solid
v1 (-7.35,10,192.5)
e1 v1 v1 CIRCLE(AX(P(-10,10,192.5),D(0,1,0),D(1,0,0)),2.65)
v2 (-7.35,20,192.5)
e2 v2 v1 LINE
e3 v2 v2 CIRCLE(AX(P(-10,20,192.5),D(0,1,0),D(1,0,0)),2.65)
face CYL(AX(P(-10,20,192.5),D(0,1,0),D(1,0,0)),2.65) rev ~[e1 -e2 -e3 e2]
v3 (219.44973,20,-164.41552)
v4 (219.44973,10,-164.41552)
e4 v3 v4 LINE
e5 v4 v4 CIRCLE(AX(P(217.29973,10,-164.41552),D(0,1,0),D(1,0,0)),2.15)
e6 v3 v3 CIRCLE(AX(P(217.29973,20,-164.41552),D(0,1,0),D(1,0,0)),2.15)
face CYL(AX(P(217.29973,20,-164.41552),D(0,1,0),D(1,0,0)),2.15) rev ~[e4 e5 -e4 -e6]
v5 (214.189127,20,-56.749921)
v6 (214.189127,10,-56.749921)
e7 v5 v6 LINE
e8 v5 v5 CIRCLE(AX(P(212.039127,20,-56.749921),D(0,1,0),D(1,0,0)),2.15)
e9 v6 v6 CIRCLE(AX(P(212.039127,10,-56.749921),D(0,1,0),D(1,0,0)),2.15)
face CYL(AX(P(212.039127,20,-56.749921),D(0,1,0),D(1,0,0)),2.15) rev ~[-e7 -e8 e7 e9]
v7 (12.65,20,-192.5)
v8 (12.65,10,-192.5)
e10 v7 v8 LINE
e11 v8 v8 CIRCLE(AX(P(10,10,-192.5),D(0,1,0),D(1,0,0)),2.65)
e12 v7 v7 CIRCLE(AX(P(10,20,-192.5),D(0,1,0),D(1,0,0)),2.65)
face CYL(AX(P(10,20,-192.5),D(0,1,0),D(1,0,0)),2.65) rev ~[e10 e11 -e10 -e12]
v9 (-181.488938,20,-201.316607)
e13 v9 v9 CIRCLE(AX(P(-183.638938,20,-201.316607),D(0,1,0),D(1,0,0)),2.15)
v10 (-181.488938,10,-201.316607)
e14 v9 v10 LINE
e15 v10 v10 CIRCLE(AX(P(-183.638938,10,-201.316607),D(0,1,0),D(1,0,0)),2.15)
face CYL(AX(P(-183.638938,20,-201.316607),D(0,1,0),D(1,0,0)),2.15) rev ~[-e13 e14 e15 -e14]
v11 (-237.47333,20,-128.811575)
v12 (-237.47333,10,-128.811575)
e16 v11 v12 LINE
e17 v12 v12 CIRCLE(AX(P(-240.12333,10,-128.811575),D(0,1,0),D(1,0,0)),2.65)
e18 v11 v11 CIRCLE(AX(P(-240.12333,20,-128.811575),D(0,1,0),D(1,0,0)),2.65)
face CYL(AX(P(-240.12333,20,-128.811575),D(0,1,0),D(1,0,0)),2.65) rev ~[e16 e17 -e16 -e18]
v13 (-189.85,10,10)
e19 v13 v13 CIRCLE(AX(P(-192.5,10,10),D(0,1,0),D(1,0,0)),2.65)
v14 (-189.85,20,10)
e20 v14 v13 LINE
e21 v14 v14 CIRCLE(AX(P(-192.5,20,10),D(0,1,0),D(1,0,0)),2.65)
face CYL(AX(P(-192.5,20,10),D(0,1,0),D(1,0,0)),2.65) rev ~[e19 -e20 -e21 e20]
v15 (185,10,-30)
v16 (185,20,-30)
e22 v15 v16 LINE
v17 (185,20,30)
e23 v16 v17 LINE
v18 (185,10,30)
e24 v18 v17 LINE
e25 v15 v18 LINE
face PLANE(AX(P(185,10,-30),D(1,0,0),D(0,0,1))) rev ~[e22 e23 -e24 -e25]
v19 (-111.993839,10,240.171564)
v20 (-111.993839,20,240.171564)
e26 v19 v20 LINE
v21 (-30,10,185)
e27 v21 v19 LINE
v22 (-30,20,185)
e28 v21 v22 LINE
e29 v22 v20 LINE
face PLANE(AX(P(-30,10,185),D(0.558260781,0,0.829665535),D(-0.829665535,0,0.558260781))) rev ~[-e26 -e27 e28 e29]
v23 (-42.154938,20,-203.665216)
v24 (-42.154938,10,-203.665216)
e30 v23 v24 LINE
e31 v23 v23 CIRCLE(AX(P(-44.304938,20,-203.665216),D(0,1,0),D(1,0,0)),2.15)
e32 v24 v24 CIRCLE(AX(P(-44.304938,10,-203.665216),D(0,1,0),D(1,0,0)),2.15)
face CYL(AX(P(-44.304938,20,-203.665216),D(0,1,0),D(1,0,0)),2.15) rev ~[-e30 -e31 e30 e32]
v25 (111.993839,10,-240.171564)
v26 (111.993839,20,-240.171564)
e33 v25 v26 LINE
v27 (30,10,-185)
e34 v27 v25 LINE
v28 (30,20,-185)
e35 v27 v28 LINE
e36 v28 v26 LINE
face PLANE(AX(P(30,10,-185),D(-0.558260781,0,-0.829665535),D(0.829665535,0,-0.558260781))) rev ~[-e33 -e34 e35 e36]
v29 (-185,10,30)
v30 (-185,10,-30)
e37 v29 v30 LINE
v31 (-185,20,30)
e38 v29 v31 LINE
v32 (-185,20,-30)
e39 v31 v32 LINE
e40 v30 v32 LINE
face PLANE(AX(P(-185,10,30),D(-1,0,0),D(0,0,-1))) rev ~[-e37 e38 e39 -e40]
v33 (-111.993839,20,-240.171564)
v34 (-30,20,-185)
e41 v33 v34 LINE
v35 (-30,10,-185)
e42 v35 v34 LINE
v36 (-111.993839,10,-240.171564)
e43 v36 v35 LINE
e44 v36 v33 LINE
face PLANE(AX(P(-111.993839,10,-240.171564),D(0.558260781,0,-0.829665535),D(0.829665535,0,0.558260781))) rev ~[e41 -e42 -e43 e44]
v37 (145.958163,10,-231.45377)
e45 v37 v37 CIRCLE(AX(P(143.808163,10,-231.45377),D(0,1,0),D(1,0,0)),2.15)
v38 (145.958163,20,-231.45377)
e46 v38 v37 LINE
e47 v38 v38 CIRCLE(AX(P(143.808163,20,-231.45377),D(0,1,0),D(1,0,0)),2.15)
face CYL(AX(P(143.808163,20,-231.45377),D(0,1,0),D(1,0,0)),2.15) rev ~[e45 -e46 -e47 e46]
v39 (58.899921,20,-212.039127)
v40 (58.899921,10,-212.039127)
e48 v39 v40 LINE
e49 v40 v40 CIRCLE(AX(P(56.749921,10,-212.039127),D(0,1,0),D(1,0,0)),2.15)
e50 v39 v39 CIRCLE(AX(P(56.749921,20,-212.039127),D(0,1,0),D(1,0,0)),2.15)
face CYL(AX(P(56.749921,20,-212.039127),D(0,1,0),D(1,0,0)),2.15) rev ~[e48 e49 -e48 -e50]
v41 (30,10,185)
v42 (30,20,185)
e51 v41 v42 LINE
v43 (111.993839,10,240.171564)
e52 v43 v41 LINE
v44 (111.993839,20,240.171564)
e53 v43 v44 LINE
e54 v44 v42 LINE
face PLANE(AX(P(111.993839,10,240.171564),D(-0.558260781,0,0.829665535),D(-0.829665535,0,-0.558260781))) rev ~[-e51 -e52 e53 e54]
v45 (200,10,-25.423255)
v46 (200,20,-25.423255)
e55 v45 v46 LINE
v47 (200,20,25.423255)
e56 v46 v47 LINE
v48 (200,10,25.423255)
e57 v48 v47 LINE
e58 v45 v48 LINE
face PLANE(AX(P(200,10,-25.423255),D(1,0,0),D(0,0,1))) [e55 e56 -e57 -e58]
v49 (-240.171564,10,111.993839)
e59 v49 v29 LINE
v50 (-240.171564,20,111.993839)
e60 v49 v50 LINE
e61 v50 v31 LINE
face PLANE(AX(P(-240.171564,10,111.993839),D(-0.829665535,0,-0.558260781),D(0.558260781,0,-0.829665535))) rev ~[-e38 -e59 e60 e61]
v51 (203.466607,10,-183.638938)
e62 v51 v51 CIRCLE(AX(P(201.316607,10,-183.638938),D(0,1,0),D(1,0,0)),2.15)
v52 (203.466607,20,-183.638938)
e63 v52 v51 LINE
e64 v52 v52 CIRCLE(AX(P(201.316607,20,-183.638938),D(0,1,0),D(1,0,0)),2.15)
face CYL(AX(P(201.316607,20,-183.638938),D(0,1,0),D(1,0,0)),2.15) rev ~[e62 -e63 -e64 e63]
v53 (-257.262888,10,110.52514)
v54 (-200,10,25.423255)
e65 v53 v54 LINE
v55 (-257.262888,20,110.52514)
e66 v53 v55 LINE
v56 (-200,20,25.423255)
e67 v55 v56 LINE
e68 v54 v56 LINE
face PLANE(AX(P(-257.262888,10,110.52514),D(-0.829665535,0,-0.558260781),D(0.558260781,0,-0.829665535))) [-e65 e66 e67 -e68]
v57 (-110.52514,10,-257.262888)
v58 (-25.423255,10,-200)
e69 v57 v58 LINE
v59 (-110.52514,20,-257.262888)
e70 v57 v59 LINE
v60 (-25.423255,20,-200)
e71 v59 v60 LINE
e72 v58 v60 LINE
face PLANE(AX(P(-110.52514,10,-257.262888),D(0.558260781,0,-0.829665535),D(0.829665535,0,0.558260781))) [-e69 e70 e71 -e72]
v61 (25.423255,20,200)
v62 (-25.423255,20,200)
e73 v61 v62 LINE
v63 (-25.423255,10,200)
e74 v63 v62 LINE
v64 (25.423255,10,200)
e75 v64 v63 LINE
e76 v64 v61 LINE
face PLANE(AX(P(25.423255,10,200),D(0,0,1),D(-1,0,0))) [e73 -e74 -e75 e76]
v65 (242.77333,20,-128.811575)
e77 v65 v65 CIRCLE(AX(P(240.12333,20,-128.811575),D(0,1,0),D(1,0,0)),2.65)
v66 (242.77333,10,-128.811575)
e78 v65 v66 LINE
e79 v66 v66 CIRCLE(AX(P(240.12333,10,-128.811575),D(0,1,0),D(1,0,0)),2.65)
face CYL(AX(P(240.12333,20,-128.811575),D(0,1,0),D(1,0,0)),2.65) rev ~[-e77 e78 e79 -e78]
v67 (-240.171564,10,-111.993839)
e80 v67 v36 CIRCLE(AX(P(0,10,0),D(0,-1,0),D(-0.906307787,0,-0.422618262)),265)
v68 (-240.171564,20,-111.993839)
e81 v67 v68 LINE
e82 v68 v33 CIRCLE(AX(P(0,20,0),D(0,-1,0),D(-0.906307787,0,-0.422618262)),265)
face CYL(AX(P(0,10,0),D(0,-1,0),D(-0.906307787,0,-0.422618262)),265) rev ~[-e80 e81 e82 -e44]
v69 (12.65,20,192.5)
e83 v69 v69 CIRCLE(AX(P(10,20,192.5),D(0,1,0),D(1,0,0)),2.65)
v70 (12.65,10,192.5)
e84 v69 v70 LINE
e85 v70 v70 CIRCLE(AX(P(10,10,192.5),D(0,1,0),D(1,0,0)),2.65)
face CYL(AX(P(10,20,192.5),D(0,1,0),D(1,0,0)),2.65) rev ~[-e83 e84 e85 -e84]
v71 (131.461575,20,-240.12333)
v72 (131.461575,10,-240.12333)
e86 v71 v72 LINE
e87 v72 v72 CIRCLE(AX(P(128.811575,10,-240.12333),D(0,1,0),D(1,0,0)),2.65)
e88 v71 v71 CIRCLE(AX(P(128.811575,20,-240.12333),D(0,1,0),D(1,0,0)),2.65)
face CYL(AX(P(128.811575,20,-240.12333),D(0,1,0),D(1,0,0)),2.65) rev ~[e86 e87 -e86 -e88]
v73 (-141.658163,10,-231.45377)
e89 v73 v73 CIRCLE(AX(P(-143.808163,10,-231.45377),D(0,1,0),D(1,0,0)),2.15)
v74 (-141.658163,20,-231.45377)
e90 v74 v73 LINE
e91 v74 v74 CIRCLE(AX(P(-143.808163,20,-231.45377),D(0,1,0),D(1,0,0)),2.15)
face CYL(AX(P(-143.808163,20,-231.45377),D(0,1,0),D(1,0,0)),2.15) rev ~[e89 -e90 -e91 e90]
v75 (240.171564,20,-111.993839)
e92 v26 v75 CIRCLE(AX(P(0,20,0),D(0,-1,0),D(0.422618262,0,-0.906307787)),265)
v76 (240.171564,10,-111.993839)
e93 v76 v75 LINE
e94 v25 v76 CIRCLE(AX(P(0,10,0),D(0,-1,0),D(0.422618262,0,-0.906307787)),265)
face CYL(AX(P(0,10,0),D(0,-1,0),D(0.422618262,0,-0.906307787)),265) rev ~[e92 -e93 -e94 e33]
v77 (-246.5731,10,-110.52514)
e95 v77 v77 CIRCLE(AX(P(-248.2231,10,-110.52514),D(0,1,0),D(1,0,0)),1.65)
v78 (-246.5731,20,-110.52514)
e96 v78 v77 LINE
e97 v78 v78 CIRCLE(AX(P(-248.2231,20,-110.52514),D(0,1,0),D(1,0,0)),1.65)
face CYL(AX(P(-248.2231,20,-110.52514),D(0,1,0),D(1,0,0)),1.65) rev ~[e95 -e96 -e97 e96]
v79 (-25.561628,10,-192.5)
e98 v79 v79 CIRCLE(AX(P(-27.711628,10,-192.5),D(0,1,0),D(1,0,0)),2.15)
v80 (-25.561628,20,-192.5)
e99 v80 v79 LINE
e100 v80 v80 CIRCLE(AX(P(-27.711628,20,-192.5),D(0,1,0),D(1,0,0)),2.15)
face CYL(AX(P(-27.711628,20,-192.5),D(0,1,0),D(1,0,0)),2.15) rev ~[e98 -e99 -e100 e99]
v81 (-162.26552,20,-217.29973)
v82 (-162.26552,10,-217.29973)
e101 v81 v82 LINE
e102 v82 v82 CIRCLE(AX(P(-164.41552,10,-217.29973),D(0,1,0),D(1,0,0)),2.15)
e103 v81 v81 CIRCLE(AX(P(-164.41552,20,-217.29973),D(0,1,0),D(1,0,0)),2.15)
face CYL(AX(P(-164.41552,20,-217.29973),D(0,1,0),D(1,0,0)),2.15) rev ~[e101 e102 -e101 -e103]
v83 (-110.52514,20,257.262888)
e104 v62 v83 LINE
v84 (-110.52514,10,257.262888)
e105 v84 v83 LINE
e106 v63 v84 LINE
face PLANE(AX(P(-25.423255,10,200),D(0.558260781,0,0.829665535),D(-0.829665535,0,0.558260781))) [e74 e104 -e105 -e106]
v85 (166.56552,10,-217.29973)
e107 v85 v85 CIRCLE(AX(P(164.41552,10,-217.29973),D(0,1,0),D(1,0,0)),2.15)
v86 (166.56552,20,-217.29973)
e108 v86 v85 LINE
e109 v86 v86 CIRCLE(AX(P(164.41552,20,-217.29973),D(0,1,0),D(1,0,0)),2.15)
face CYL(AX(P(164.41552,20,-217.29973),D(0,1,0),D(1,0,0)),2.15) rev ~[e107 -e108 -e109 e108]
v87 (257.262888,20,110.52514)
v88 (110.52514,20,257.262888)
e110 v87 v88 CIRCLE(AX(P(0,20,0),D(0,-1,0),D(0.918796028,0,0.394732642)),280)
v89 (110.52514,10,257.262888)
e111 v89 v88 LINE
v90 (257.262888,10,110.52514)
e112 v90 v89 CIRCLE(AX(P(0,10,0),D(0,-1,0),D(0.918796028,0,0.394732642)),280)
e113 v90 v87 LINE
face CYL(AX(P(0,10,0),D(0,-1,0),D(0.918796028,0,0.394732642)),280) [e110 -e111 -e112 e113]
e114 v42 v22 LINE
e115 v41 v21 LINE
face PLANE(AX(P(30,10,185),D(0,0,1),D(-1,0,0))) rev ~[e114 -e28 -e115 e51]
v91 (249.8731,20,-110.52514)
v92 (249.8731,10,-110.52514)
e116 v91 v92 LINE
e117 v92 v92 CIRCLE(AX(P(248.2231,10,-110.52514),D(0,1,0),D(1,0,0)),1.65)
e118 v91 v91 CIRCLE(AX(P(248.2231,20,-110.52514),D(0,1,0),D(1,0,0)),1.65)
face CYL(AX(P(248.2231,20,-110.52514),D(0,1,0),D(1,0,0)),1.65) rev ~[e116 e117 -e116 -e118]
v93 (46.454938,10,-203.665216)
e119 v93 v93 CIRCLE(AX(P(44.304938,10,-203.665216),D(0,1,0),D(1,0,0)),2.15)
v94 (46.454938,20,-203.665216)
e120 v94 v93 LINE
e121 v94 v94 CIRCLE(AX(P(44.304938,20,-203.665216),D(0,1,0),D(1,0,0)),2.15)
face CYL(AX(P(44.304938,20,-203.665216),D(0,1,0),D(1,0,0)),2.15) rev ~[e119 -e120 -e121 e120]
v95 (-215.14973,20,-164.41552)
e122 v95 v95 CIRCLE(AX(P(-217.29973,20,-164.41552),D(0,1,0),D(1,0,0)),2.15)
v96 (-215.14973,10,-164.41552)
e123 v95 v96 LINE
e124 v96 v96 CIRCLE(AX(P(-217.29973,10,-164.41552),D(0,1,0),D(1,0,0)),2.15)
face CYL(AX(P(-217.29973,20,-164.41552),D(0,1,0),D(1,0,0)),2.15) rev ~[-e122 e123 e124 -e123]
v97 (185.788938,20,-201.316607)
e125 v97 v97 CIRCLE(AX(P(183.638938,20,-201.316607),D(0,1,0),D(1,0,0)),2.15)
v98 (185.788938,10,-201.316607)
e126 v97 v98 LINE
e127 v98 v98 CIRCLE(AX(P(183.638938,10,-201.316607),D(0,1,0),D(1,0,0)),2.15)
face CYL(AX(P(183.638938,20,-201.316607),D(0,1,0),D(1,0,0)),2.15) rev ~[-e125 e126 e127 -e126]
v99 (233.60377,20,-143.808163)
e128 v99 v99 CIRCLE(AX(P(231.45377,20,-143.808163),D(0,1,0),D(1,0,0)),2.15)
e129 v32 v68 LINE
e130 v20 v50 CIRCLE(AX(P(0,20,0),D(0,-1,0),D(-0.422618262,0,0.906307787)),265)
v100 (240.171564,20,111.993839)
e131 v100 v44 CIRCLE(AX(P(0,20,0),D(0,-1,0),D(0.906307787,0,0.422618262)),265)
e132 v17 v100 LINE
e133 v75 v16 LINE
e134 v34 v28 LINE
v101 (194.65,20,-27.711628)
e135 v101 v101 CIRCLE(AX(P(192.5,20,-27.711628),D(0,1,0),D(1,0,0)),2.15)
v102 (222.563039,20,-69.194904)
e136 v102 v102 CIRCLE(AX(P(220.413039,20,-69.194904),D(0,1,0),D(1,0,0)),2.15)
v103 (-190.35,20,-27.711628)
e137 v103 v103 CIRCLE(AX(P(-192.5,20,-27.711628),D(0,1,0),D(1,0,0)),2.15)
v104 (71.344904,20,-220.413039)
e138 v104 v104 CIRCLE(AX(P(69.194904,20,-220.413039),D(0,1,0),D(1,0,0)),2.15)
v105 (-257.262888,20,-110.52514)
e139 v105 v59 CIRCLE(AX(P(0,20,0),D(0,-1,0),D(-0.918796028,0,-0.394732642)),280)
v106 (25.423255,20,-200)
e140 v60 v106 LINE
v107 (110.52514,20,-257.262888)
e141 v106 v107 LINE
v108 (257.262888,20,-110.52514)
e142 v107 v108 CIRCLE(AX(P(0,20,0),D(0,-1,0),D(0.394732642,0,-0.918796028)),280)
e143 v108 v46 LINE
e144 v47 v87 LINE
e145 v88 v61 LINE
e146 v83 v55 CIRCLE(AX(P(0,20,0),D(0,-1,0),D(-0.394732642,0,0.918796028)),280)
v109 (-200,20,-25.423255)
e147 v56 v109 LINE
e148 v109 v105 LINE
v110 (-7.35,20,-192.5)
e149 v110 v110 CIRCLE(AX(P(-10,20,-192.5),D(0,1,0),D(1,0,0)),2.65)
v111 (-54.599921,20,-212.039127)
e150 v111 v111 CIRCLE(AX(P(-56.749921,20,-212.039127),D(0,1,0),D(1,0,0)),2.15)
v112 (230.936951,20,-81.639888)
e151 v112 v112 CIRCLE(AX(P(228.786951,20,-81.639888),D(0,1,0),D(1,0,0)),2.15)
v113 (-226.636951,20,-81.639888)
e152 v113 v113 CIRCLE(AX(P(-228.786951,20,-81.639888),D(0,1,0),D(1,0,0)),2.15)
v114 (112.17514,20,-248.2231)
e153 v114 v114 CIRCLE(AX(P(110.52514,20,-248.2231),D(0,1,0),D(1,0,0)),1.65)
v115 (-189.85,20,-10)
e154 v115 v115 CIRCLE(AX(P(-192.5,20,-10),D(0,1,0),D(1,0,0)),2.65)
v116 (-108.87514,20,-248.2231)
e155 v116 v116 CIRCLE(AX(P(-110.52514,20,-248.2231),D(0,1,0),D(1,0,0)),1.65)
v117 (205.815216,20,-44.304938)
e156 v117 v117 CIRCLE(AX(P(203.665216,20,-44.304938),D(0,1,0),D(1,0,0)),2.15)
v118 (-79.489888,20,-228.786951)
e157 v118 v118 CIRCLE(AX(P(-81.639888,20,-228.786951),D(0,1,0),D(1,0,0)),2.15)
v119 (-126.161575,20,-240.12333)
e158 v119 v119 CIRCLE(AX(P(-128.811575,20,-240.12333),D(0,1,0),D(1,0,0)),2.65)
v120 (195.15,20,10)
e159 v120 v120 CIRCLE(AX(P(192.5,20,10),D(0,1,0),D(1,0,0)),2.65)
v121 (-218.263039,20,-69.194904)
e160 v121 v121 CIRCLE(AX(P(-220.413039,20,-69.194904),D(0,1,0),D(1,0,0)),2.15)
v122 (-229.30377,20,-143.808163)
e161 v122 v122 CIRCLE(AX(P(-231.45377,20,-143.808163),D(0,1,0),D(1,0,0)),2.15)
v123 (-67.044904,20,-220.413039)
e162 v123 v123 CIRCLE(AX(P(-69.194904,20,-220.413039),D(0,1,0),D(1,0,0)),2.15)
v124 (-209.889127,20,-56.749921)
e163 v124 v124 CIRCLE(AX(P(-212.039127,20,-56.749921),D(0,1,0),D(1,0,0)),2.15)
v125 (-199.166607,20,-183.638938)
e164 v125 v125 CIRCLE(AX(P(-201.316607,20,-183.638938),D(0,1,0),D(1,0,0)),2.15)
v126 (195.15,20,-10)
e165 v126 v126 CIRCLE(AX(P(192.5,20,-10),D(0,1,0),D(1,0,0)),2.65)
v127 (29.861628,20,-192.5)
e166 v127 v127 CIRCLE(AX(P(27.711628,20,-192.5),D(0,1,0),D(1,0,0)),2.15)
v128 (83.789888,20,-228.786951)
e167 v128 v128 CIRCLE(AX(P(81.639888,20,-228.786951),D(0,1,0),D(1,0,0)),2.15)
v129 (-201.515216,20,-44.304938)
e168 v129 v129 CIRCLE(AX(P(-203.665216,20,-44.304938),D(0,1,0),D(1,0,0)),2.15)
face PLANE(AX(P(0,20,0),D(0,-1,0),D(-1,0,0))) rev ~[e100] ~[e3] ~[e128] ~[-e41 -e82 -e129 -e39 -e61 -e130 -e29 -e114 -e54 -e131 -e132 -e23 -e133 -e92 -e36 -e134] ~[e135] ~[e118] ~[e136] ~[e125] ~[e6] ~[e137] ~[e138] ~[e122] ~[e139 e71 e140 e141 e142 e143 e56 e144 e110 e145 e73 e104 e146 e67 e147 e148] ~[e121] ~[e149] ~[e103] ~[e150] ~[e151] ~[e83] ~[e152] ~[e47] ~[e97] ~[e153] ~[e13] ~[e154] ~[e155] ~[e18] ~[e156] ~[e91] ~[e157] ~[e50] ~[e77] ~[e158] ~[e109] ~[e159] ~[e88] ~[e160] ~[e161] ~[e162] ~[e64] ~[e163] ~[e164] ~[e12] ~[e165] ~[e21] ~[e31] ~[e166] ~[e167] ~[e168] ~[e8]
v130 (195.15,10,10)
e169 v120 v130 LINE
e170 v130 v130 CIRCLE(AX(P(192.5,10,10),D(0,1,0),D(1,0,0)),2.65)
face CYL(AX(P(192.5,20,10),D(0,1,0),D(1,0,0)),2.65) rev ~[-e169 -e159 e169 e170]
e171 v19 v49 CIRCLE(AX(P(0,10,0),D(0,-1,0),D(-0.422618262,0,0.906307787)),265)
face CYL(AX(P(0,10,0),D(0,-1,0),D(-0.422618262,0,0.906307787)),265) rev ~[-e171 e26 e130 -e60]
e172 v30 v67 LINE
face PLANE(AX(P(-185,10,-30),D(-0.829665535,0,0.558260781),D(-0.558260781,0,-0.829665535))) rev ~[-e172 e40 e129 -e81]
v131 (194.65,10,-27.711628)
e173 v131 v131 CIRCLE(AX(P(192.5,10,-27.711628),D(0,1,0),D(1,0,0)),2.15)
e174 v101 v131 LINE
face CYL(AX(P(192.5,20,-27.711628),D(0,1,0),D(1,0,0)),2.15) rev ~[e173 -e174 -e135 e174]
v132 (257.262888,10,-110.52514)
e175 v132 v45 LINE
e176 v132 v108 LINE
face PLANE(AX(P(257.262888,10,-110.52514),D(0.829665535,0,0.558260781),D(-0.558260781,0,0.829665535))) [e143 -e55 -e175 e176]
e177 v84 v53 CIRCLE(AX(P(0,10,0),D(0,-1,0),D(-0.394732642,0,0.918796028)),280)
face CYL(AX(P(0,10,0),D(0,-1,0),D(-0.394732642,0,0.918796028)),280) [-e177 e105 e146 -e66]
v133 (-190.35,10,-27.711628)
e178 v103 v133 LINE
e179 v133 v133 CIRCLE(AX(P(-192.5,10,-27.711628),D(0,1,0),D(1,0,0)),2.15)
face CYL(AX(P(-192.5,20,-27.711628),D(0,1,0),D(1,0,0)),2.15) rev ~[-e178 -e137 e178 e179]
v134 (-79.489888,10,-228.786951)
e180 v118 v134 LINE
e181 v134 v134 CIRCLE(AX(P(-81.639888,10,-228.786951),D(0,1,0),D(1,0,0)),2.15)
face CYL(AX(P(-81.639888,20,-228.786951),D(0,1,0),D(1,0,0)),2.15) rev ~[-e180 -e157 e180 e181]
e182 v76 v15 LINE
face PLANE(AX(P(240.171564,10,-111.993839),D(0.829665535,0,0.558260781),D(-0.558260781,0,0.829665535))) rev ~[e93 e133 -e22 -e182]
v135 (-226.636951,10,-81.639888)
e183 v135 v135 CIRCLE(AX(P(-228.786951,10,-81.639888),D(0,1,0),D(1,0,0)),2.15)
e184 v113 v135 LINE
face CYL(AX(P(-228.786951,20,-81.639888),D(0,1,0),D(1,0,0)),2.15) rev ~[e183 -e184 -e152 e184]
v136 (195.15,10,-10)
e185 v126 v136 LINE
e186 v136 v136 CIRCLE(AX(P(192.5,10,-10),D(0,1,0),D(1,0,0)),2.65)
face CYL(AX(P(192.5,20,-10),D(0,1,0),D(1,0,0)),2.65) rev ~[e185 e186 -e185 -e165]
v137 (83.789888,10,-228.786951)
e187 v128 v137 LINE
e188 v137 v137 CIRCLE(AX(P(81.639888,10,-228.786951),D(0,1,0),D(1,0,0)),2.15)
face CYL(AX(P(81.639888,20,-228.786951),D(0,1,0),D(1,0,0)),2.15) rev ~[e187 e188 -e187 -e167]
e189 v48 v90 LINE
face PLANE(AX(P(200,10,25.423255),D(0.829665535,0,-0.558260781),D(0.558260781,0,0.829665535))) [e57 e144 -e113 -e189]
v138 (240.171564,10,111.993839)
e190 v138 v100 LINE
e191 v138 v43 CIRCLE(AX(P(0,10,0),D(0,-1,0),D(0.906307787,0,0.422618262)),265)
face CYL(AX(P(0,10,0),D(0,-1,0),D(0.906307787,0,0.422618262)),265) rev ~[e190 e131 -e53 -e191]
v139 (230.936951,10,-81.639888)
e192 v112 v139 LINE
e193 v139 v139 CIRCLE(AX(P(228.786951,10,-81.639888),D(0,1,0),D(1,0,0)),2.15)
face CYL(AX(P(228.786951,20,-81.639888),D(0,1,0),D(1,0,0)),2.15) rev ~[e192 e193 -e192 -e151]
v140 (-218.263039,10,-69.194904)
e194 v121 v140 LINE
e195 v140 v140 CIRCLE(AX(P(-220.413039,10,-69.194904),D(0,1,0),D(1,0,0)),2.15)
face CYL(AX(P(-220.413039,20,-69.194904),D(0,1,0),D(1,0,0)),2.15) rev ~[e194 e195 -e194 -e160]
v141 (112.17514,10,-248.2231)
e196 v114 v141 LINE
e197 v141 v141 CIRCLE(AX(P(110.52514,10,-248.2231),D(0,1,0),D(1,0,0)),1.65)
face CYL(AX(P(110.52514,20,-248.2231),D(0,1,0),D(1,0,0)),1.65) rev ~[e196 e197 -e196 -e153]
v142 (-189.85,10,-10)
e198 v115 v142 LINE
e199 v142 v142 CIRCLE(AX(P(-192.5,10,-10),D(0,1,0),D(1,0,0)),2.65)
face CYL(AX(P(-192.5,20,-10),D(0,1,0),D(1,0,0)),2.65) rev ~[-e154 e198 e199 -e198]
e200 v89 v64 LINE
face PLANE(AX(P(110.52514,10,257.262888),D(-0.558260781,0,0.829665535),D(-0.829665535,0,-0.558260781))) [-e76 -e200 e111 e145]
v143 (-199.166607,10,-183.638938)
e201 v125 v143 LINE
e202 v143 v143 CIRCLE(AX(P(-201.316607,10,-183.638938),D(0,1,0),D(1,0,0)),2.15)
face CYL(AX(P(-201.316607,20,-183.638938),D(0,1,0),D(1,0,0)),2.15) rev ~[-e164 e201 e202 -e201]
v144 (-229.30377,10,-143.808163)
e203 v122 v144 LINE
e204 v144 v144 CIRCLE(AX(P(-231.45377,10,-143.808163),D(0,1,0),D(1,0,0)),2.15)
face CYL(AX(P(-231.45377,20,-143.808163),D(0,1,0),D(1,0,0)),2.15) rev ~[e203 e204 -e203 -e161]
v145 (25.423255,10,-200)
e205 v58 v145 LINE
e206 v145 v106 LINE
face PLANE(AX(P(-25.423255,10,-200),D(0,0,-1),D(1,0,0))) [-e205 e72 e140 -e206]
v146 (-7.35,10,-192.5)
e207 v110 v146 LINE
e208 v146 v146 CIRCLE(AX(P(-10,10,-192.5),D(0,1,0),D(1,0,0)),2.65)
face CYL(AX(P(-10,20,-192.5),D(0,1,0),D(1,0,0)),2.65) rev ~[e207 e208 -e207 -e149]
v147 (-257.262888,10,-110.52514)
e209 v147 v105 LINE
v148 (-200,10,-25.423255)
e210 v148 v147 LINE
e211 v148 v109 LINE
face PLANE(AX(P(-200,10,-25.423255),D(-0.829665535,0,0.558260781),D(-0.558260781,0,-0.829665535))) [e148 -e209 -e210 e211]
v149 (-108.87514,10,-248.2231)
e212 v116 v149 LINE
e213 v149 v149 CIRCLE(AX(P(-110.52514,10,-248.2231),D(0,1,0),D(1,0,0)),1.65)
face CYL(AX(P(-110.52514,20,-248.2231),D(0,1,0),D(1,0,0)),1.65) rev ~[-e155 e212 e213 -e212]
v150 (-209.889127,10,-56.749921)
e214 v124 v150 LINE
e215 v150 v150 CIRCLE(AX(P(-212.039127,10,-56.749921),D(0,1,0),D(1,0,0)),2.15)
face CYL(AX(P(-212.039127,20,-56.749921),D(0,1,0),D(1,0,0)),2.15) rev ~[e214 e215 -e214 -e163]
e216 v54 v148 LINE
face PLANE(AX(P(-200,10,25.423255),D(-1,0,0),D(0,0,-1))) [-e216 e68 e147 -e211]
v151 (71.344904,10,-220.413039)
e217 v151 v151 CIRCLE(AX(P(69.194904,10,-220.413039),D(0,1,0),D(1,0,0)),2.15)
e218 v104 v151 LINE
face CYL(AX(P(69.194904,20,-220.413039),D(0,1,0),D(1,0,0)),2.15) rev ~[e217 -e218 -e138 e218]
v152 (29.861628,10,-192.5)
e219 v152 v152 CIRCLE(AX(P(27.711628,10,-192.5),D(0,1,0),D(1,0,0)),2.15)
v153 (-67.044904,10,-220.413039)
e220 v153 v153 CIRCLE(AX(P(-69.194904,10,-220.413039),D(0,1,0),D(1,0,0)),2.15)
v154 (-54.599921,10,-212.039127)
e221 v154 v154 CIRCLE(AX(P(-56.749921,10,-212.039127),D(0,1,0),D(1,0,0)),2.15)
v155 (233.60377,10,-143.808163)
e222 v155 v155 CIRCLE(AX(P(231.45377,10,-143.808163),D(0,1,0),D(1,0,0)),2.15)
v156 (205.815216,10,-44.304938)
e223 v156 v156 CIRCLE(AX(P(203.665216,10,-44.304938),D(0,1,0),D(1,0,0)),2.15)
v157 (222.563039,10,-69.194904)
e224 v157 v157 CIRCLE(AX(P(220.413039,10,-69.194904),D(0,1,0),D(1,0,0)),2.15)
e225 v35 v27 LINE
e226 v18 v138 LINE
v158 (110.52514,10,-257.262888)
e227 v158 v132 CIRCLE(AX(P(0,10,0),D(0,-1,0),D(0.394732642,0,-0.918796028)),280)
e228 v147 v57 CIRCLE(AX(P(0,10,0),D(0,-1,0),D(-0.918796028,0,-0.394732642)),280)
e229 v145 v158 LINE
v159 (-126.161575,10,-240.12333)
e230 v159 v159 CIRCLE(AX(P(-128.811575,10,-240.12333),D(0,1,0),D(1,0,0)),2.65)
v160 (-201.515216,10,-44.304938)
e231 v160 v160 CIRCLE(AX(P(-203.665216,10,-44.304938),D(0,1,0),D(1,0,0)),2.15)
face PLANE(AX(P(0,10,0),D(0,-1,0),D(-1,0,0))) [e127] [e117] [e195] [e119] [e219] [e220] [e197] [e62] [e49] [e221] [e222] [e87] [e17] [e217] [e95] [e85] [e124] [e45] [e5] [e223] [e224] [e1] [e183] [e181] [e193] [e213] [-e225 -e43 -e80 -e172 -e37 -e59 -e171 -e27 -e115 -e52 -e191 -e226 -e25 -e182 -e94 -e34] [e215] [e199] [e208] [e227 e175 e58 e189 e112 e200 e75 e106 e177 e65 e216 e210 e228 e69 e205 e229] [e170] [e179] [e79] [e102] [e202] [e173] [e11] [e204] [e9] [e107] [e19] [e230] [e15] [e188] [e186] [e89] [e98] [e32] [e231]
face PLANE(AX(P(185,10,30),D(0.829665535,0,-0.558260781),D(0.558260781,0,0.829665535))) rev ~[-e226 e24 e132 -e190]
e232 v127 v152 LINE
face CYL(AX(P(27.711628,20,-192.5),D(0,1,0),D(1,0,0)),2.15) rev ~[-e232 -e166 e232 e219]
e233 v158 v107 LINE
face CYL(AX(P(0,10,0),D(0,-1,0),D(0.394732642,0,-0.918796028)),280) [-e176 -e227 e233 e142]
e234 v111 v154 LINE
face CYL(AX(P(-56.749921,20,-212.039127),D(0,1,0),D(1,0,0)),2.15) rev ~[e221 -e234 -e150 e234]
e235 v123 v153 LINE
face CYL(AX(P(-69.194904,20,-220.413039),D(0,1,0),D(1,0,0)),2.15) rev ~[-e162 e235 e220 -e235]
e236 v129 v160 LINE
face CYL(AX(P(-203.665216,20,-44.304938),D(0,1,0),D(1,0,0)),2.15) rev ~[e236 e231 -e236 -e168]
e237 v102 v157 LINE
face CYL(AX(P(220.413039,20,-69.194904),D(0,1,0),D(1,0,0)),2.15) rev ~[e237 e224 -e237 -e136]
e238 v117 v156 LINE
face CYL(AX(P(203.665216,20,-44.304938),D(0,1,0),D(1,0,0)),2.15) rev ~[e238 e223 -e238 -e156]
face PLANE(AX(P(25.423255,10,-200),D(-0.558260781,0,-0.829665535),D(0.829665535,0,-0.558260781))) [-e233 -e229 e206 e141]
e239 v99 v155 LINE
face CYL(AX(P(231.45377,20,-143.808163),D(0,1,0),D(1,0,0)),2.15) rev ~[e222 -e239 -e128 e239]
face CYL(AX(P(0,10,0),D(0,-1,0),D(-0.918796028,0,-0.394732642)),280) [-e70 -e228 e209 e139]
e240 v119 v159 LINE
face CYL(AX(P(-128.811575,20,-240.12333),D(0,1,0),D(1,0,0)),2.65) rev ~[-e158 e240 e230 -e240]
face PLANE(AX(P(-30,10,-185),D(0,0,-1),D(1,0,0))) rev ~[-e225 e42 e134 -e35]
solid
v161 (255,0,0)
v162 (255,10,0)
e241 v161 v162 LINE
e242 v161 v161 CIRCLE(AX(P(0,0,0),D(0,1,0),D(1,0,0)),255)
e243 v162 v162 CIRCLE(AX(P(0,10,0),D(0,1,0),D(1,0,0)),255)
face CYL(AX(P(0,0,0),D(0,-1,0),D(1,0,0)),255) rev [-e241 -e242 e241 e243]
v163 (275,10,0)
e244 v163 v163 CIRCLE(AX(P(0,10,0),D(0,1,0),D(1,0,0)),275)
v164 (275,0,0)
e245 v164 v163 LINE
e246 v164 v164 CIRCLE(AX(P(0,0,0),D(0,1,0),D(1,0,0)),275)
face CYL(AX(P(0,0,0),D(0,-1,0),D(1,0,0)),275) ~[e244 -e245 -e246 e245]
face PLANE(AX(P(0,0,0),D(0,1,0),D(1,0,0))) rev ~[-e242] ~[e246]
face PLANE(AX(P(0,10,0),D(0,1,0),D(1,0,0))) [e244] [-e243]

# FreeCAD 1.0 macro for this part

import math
import FreeCAD as App
import Part
import Sketcher

doc = App.newDocument("Part")
params = doc.addObject("Spreadsheet::Sheet", "Params")
for row, (alias, value) in enumerate([
    ("sketch1_diameter", "550 mm"),
    ("sketch1_diameter2", "510 mm"),
    ("pad1_length", "10 mm"),
    ("sketch2_radius", "280 mm"),
    ("sketch2_radius2", "265 mm"),
    ("sketch2_width", "60 mm"),
    ("pad2_length", "10 mm"),
    ("sketch3_diameter", "5.3 mm"),
    ("sketch3_diameter2", "3.3 mm"),
    ("sketch3_diameter3", "4.3 mm"),
], start=1):
    params.set(f"A{row}", alias)
    params.set(f"B{row}", "=" + value)
    params.setAlias(f"B{row}", alias)

body = doc.addObject("PartDesign::Body", "Body")

# Sketch on XZ plane
sketch1 = body.newObject("Sketcher::SketchObject", "Sketch")
sketch1.AttachmentSupport = (doc.getObject("XZ_Plane"), [""])
sketch1.MapMode = "FlatFace"
sketch1.addGeometry([
    Part.Circle(App.Vector(0, 0, 0), App.Vector(0, 0, 1), 275),
    Part.Circle(App.Vector(0, 0, 0), App.Vector(0, 0, 1), 255),
], False)
sketch1.addConstraint([
    Sketcher.Constraint("Coincident", 0, 3, -1, 1),
    Sketcher.Constraint("Coincident", 1, 3, -1, 1),
    Sketcher.Constraint("Diameter", 0, 550.0),
    Sketcher.Constraint("Diameter", 1, 510.0),
])
sketch1.setExpression("Constraints[2]", "Params.sketch1_diameter")
sketch1.setExpression("Constraints[3]", "Params.sketch1_diameter2")
pad1 = body.newObject("PartDesign::Pad", "Pad")
pad1.Profile = sketch1
pad1.setExpression("Length", "Params.pad1_length")
pad1.Reversed = True
body2 = doc.addObject("PartDesign::Body", "Body001")

# Sketch on XZ plane
sketch2 = body2.newObject("Sketcher::SketchObject", "Sketch001")
sketch2.AttachmentSupport = (doc.getObject("XZ_Plane001"), [""])
sketch2.MapMode = "FlatFace"
sketch2.AttachmentOffset = App.Placement(App.Vector(0, 0, -10), App.Rotation())
sketch2.addGeometry([
    Part.LineSegment(App.Vector(-25, -200, 0), App.Vector(-111, -257, 0)),  # 0
    Part.ArcOfCircle(Part.Circle(App.Vector(0, 0, 0), App.Vector(0, 0, 1), 280), math.radians(-157), math.radians(-113)),  # 1
    Part.LineSegment(App.Vector(-257, -111, 0), App.Vector(-200, -25, 0)),  # 2
    Part.LineSegment(App.Vector(-200, -25, 0), App.Vector(-200, 25, 0)),  # 3
    Part.LineSegment(App.Vector(-200, 25, 0), App.Vector(-257, 111, 0)),  # 4
    Part.ArcOfCircle(Part.Circle(App.Vector(0, 0, 0), App.Vector(0, 0, 1), 280), math.radians(113), math.radians(157)),  # 5
    Part.LineSegment(App.Vector(-111, 257, 0), App.Vector(-25, 200, 0)),  # 6
    Part.LineSegment(App.Vector(-25, 200, 0), App.Vector(25, 200, 0)),  # 7
    Part.LineSegment(App.Vector(25, 200, 0), App.Vector(111, 257, 0)),  # 8
    Part.ArcOfCircle(Part.Circle(App.Vector(0, 0, 0), App.Vector(0, 0, 1), 280), math.radians(23), math.radians(67)),  # 9
    Part.LineSegment(App.Vector(257, 111, 0), App.Vector(200, 25, 0)),  # 10
    Part.LineSegment(App.Vector(200, 25, 0), App.Vector(200, -25, 0)),  # 11
    Part.LineSegment(App.Vector(200, -25, 0), App.Vector(257, -111, 0)),  # 12
    Part.ArcOfCircle(Part.Circle(App.Vector(0, 0, 0), App.Vector(0, 0, 1), 280), math.radians(-67), math.radians(-23)),  # 13
    Part.LineSegment(App.Vector(111, -257, 0), App.Vector(25, -200, 0)),  # 14
    Part.LineSegment(App.Vector(25, -200, 0), App.Vector(-25, -200, 0)),  # 15
    Part.LineSegment(App.Vector(30, -185, 0), App.Vector(112, -240, 0)),  # 16
    Part.ArcOfCircle(Part.Circle(App.Vector(0, 0, 0), App.Vector(0, 0, 1), 265), math.radians(-65), math.radians(-25)),  # 17
    Part.LineSegment(App.Vector(240, -112, 0), App.Vector(185, -30, 0)),  # 18
    Part.LineSegment(App.Vector(185, -30, 0), App.Vector(185, 30, 0)),  # 19
    Part.LineSegment(App.Vector(185, 30, 0), App.Vector(240, 112, 0)),  # 20
    Part.ArcOfCircle(Part.Circle(App.Vector(0, 0, 0), App.Vector(0, 0, 1), 265), math.radians(25), math.radians(65)),  # 21
    Part.LineSegment(App.Vector(112, 240, 0), App.Vector(30, 185, 0)),  # 22
    Part.LineSegment(App.Vector(30, 185, 0), App.Vector(-30, 185, 0)),  # 23
    Part.LineSegment(App.Vector(-30, 185, 0), App.Vector(-112, 240, 0)),  # 24
    Part.ArcOfCircle(Part.Circle(App.Vector(0, 0, 0), App.Vector(0, 0, 1), 265), math.radians(115), math.radians(155)),  # 25
    Part.LineSegment(App.Vector(-240, 112, 0), App.Vector(-185, 30, 0)),  # 26
    Part.LineSegment(App.Vector(-185, 30, 0), App.Vector(-185, -30, 0)),  # 27
    Part.LineSegment(App.Vector(-185, -30, 0), App.Vector(-240, -112, 0)),  # 28
    Part.ArcOfCircle(Part.Circle(App.Vector(0, 0, 0), App.Vector(0, 0, 1), 265), math.radians(-155), math.radians(-115)),  # 29
    Part.LineSegment(App.Vector(-112, -240, 0), App.Vector(-30, -185, 0)),  # 30
    Part.LineSegment(App.Vector(-30, -185, 0), App.Vector(30, -185, 0)),  # 31
], False)
sketch2.addConstraint([
    Sketcher.Constraint("Coincident", 0, 2, 1, 2),
    Sketcher.Constraint("Coincident", 1, 1, 2, 1),
    Sketcher.Constraint("Coincident", 2, 2, 3, 1),
    Sketcher.Constraint("Coincident", 3, 2, 4, 1),
    Sketcher.Constraint("Coincident", 4, 2, 5, 2),
    Sketcher.Constraint("Coincident", 5, 1, 6, 1),
    Sketcher.Constraint("Coincident", 6, 2, 7, 1),
    Sketcher.Constraint("Coincident", 7, 2, 8, 1),
    Sketcher.Constraint("Coincident", 8, 2, 9, 2),
    Sketcher.Constraint("Coincident", 9, 1, 10, 1),
    Sketcher.Constraint("Coincident", 10, 2, 11, 1),
    Sketcher.Constraint("Coincident", 11, 2, 12, 1),
    Sketcher.Constraint("Coincident", 12, 2, 13, 2),
    Sketcher.Constraint("Coincident", 13, 1, 14, 1),
    Sketcher.Constraint("Coincident", 14, 2, 15, 1),
    Sketcher.Constraint("Coincident", 15, 2, 0, 1),
    Sketcher.Constraint("Coincident", 16, 2, 17, 1),
    Sketcher.Constraint("Coincident", 17, 2, 18, 1),
    Sketcher.Constraint("Coincident", 18, 2, 19, 1),
    Sketcher.Constraint("Coincident", 19, 2, 20, 1),
    Sketcher.Constraint("Coincident", 20, 2, 21, 1),
    Sketcher.Constraint("Coincident", 21, 2, 22, 1),
    Sketcher.Constraint("Coincident", 22, 2, 23, 1),
    Sketcher.Constraint("Coincident", 23, 2, 24, 1),
    Sketcher.Constraint("Coincident", 24, 2, 25, 1),
    Sketcher.Constraint("Coincident", 25, 2, 26, 1),
    Sketcher.Constraint("Coincident", 26, 2, 27, 1),
    Sketcher.Constraint("Coincident", 27, 2, 28, 1),
    Sketcher.Constraint("Coincident", 28, 2, 29, 1),
    Sketcher.Constraint("Coincident", 29, 2, 30, 1),
    Sketcher.Constraint("Coincident", 30, 2, 31, 1),
    Sketcher.Constraint("Coincident", 31, 2, 16, 1),
    Sketcher.Constraint("Vertical", 3),
    Sketcher.Constraint("Horizontal", 7),
    Sketcher.Constraint("Vertical", 11),
    Sketcher.Constraint("Horizontal", 15),
    Sketcher.Constraint("Vertical", 19),
    Sketcher.Constraint("Horizontal", 23),
    Sketcher.Constraint("Vertical", 27),
    Sketcher.Constraint("Horizontal", 31),
    Sketcher.Constraint("Coincident", 1, 3, -1, 1),
    Sketcher.Constraint("Coincident", 5, 3, -1, 1),
    Sketcher.Constraint("Coincident", 9, 3, -1, 1),
    Sketcher.Constraint("Coincident", 13, 3, -1, 1),
    Sketcher.Constraint("Coincident", 17, 3, -1, 1),
    Sketcher.Constraint("Coincident", 21, 3, -1, 1),
    Sketcher.Constraint("Coincident", 25, 3, -1, 1),
    Sketcher.Constraint("Coincident", 29, 3, -1, 1),
    Sketcher.Constraint("Equal", 1, 5),
    Sketcher.Constraint("Equal", 5, 9),
    Sketcher.Constraint("Equal", 9, 13),
    Sketcher.Constraint("Equal", 17, 21),
    Sketcher.Constraint("Equal", 21, 25),
    Sketcher.Constraint("Equal", 25, 29),
    Sketcher.Constraint("Symmetric", 2, 2, 10, 2, -1, 1),
    Sketcher.Constraint("Symmetric", 6, 2, 14, 2, -1, 1),
    Sketcher.Constraint("Symmetric", 18, 2, 26, 2, -1, 1),
    Sketcher.Constraint("Symmetric", 22, 2, 30, 2, -1, 1),
    Sketcher.Constraint("Perpendicular", 0, 4),
    Sketcher.Constraint("Perpendicular", 2, 6),
    Sketcher.Constraint("Perpendicular", 4, 8),
    Sketcher.Constraint("Perpendicular", 6, 10),
    Sketcher.Constraint("Perpendicular", 8, 12),
    Sketcher.Constraint("Perpendicular", 10, 14),
    Sketcher.Constraint("Parallel", 14, 16),
    Sketcher.Constraint("Parallel", 12, 18),
    Sketcher.Constraint("Perpendicular", 16, 20),
    Sketcher.Constraint("Perpendicular", 18, 22),
    Sketcher.Constraint("Perpendicular", 20, 24),
    Sketcher.Constraint("Perpendicular", 22, 26),
    Sketcher.Constraint("Perpendicular", 24, 28),
    Sketcher.Constraint("Perpendicular", 26, 30),
    Sketcher.Constraint("Horizontal", 5, 1, 8, 2),
    Sketcher.Constraint("Horizontal", 4, 2, 9, 1),
    Sketcher.Constraint("Horizontal", 3, 2, 10, 2),
    Sketcher.Constraint("Horizontal", 2, 2, 11, 2),
    Sketcher.Constraint("Horizontal", 19, 2, 26, 2),
    Sketcher.Constraint("Horizontal", 18, 2, 27, 2),
    Sketcher.Constraint("Vertical", 6, 2, 15, 2),
    Sketcher.Constraint("Vertical", 23, 2, 30, 2),
    Sketcher.Constraint("Vertical", 22, 2, 31, 2),
    Sketcher.Constraint("Equal", 15, 3),
    Sketcher.Constraint("Equal", 31, 19),
    Sketcher.Constraint("Equal", 0, 2),
    Sketcher.Constraint("Equal", 16, 18),
    Sketcher.Constraint("Radius", 1, 280.0),
    Sketcher.Constraint("Radius", 17, 265.0),
    Sketcher.Constraint("DistanceX", 23, 2, 23, 1, 60.0),
    Sketcher.Constraint("DistanceX", 2, 2, -1, 1, 200.0),
    Sketcher.Constraint("DistanceX", -1, 1, 18, 2, 185.0),
    Sketcher.Constraint("DistanceX", 7, 1, 7, 2, 50.846511),
    Sketcher.Constraint("DistanceX", 0, 2, -1, 1, 110.52514),
])
sketch2.setExpression("Constraints[85]", "Params.sketch2_radius")
sketch2.setExpression("Constraints[86]", "Params.sketch2_radius2")
sketch2.setExpression("Constraints[87]", "Params.sketch2_width")
pad2 = body2.newObject("PartDesign::Pad", "Pad001")
pad2.Profile = sketch2
pad2.setExpression("Length", "Params.pad2_length")
pad2.Reversed = True

# Sketch on XZ plane
sketch3 = body2.newObject("Sketcher::SketchObject", "Sketch002")
sketch3.AttachmentSupport = (doc.getObject("XZ_Plane001"), [""])
sketch3.MapMode = "FlatFace"
sketch3.AttachmentOffset = App.Placement(App.Vector(0, 0, -20), App.Rotation())
sketch3.addGeometry([
    Part.Circle(App.Vector(-10, -192.5, 0), App.Vector(0, 0, 1), 2.6),  # 0
    Part.Circle(App.Vector(10, -192.5, 0), App.Vector(0, 0, 1), 2.6),  # 1
    Part.Circle(App.Vector(-10, 192.5, 0), App.Vector(0, 0, 1), 2.6),  # 2
    Part.Circle(App.Vector(10, 192.5, 0), App.Vector(0, 0, 1), 2.6),  # 3
    Part.Circle(App.Vector(192.5, -10, 0), App.Vector(0, 0, 1), 2.6),  # 4
    Part.Circle(App.Vector(192.5, 10, 0), App.Vector(0, 0, 1), 2.6),  # 5
    Part.Circle(App.Vector(-192.5, -10, 0), App.Vector(0, 0, 1), 2.6),  # 6
    Part.Circle(App.Vector(-192.5, 10, 0), App.Vector(0, 0, 1), 2.6),  # 7
    Part.Circle(App.Vector(-110.5, -248.2, 0), App.Vector(0, 0, 1), 1.6),  # 8
    Part.Circle(App.Vector(-27.7, -192.5, 0), App.Vector(0, 0, 1), 2.1),  # 9
    Part.Circle(App.Vector(-44.3, -203.7, 0), App.Vector(0, 0, 1), 2.1),  # 10
    Part.Circle(App.Vector(-56.7, -212, 0), App.Vector(0, 0, 1), 2.1),  # 11
    Part.Circle(App.Vector(-69.2, -220.4, 0), App.Vector(0, 0, 1), 2.1),  # 12
    Part.Circle(App.Vector(-81.6, -228.8, 0), App.Vector(0, 0, 1), 2.1),  # 13
    Part.Circle(App.Vector(-143.8, -231.5, 0), App.Vector(0, 0, 1), 2.1),  # 14
    Part.Circle(App.Vector(-164.4, -217.3, 0), App.Vector(0, 0, 1), 2.1),  # 15
    Part.Circle(App.Vector(-183.6, -201.3, 0), App.Vector(0, 0, 1), 2.1),  # 16
    Part.Circle(App.Vector(-201.3, -183.6, 0), App.Vector(0, 0, 1), 2.1),  # 17
    Part.Circle(App.Vector(-217.3, -164.4, 0), App.Vector(0, 0, 1), 2.1),  # 18
    Part.Circle(App.Vector(-231.5, -143.8, 0), App.Vector(0, 0, 1), 2.1),  # 19
    Part.Circle(App.Vector(-128.8, -240.1, 0), App.Vector(0, 0, 1), 2.6),  # 20
    Part.Circle(App.Vector(-240.1, -128.8, 0), App.Vector(0, 0, 1), 2.6),  # 21
    Part.Circle(App.Vector(-228.8, -81.6, 0), App.Vector(0, 0, 1), 2.1),  # 22
    Part.Circle(App.Vector(-220.4, -69.2, 0), App.Vector(0, 0, 1), 2.1),  # 23
    Part.Circle(App.Vector(-212, -56.7, 0), App.Vector(0, 0, 1), 2.1),  # 24
    Part.Circle(App.Vector(-203.7, -44.3, 0), App.Vector(0, 0, 1), 2.1),  # 25
    Part.Circle(App.Vector(-192.5, -27.7, 0), App.Vector(0, 0, 1), 2.1),  # 26
    Part.Circle(App.Vector(-248.2, -110.5, 0), App.Vector(0, 0, 1), 1.6),  # 27
    Part.Circle(App.Vector(192.5, -27.7, 0), App.Vector(0, 0, 1), 2.1),  # 28
    Part.Circle(App.Vector(248.2, -110.5, 0), App.Vector(0, 0, 1), 1.6),  # 29
    Part.Circle(App.Vector(203.7, -44.3, 0), App.Vector(0, 0, 1), 2.1),  # 30
    Part.Circle(App.Vector(212, -56.7, 0), App.Vector(0, 0, 1), 2.1),  # 31
    Part.Circle(App.Vector(220.4, -69.2, 0), App.Vector(0, 0, 1), 2.1),  # 32
    Part.Circle(App.Vector(228.8, -81.6, 0), App.Vector(0, 0, 1), 2.1),  # 33
    Part.Circle(App.Vector(240.1, -128.8, 0), App.Vector(0, 0, 1), 2.6),  # 34
    Part.Circle(App.Vector(231.5, -143.8, 0), App.Vector(0, 0, 1), 2.1),  # 35
    Part.Circle(App.Vector(128.8, -240.1, 0), App.Vector(0, 0, 1), 2.6),  # 36
    Part.Circle(App.Vector(201.3, -183.6, 0), App.Vector(0, 0, 1), 2.1),  # 37
    Part.Circle(App.Vector(183.6, -201.3, 0), App.Vector(0, 0, 1), 2.1),  # 38
    Part.Circle(App.Vector(164.4, -217.3, 0), App.Vector(0, 0, 1), 2.1),  # 39
    Part.Circle(App.Vector(143.8, -231.5, 0), App.Vector(0, 0, 1), 2.1),  # 40
    Part.Circle(App.Vector(81.6, -228.8, 0), App.Vector(0, 0, 1), 2.1),  # 41
    Part.Circle(App.Vector(69.2, -220.4, 0), App.Vector(0, 0, 1), 2.1),  # 42
    Part.Circle(App.Vector(56.7, -212, 0), App.Vector(0, 0, 1), 2.1),  # 43
    Part.Circle(App.Vector(44.3, -203.7, 0), App.Vector(0, 0, 1), 2.1),  # 44
    Part.Circle(App.Vector(110.5, -248.2, 0), App.Vector(0, 0, 1), 1.6),  # 45
    Part.Circle(App.Vector(27.7, -192.5, 0), App.Vector(0, 0, 1), 2.1),  # 46
    Part.Circle(App.Vector(217.3, -164.4, 0), App.Vector(0, 0, 1), 2.1),  # 47
], False)
sketch3.addConstraint([
    Sketcher.Constraint("Equal", 0, 1),
    Sketcher.Constraint("Equal", 1, 2),
    Sketcher.Constraint("Equal", 2, 3),
    Sketcher.Constraint("Equal", 3, 4),
    Sketcher.Constraint("Equal", 4, 5),
    Sketcher.Constraint("Equal", 5, 6),
    Sketcher.Constraint("Equal", 6, 7),
    Sketcher.Constraint("Equal", 9, 10),
    Sketcher.Constraint("Equal", 10, 11),
    Sketcher.Constraint("Equal", 11, 12),
    Sketcher.Constraint("Equal", 12, 13),
    Sketcher.Constraint("Equal", 13, 14),
    Sketcher.Constraint("Equal", 14, 15),
    Sketcher.Constraint("Equal", 15, 16),
    Sketcher.Constraint("Equal", 16, 17),
    Sketcher.Constraint("Equal", 17, 18),
    Sketcher.Constraint("Equal", 18, 19),
    Sketcher.Constraint("Equal", 7, 20),
    Sketcher.Constraint("Equal", 20, 21),
    Sketcher.Constraint("Equal", 19, 22),
    Sketcher.Constraint("Equal", 22, 23),
    Sketcher.Constraint("Equal", 23, 24),
    Sketcher.Constraint("Equal", 24, 25),
    Sketcher.Constraint("Equal", 25, 26),
    Sketcher.Constraint("Equal", 8, 27),
    Sketcher.Constraint("Equal", 26, 28),
    Sketcher.Constraint("Equal", 27, 29),
    Sketcher.Constraint("Equal", 28, 30),
    Sketcher.Constraint("Equal", 30, 31),
    Sketcher.Constraint("Equal", 31, 32),
    Sketcher.Constraint("Equal", 32, 33),
    Sketcher.Constraint("Equal", 21, 34),
    Sketcher.Constraint("Equal", 33, 35),
    Sketcher.Constraint("Equal", 34, 36),
    Sketcher.Constraint("Equal", 35, 37),
    Sketcher.Constraint("Equal", 37, 38),
    Sketcher.Constraint("Equal", 38, 39),
    Sketcher.Constraint("Equal", 39, 40),
    Sketcher.Constraint("Equal", 40, 41),
    Sketcher.Constraint("Equal", 41, 42),
    Sketcher.Constraint("Equal", 42, 43),
    Sketcher.Constraint("Equal", 43, 44),
    Sketcher.Constraint("Equal", 29, 45),
    Sketcher.Constraint("Equal", 44, 46),
    Sketcher.Constraint("Equal", 46, 47),
    Sketcher.Constraint("Symmetric", 1, 3, 2, 3, -1, 1),
    Sketcher.Constraint("Symmetric", 0, 3, 3, 3, -1, 1),
    Sketcher.Constraint("Symmetric", 5, 3, 6, 3, -1, 1),
    Sketcher.Constraint("Symmetric", 4, 3, 7, 3, -1, 1),
    Sketcher.Constraint("Symmetric", 0, 3, 1, 3, -2),
    Sketcher.Constraint("Symmetric", 4, 3, 6, 3, -2),
    Sketcher.Constraint("Symmetric", 26, 3, 28, 3, -2),
    Sketcher.Constraint("Symmetric", 27, 3, 29, 3, -2),
    Sketcher.Constraint("Symmetric", 25, 3, 30, 3, -2),
    Sketcher.Constraint("Symmetric", 24, 3, 31, 3, -2),
    Sketcher.Constraint("Symmetric", 23, 3, 32, 3, -2),
    Sketcher.Constraint("Symmetric", 22, 3, 33, 3, -2),
    Sketcher.Constraint("Symmetric", 21, 3, 34, 3, -2),
    Sketcher.Constraint("Symmetric", 19, 3, 35, 3, -2),
    Sketcher.Constraint("Symmetric", 20, 3, 36, 3, -2),
    Sketcher.Constraint("Symmetric", 17, 3, 37, 3, -2),
    Sketcher.Constraint("Symmetric", 16, 3, 38, 3, -2),
    Sketcher.Constraint("Symmetric", 15, 3, 39, 3, -2),
    Sketcher.Constraint("Symmetric", 14, 3, 40, 3, -2),
    Sketcher.Constraint("Symmetric", 13, 3, 41, 3, -2),
    Sketcher.Constraint("Symmetric", 12, 3, 42, 3, -2),
    Sketcher.Constraint("Symmetric", 11, 3, 43, 3, -2),
    Sketcher.Constraint("Symmetric", 10, 3, 44, 3, -2),
    Sketcher.Constraint("Symmetric", 8, 3, 45, 3, -2),
    Sketcher.Constraint("Symmetric", 9, 3, 46, 3, -2),
    Sketcher.Constraint("Symmetric", 18, 3, 47, 3, -2),
    Sketcher.Constraint("Horizontal", 1, 3, 9, 3),
    Sketcher.Constraint("Vertical", 7, 3, 26, 3),
    Sketcher.Constraint("Diameter", 0, 5.3),
    Sketcher.Constraint("Diameter", 8, 3.3),
    Sketcher.Constraint("Diameter", 9, 4.3),
    Sketcher.Constraint("DistanceX", 0, 3, -1, 1, 10.0),
    Sketcher.Constraint("DistanceY", 4, 3, -1, 1, 10.0),
    Sketcher.Constraint("DistanceY", 0, 3, 2, 3, 385.0),
    Sketcher.Constraint("DistanceX", 6, 3, 4, 3, 385.0),
    Sketcher.Constraint("DistanceY", 8, 3, -1, 1, 248.2231),
    Sketcher.Constraint("DistanceX", 27, 3, -1, 1, 248.2231),
    Sketcher.Constraint("DistanceX", 8, 3, 10, 3, 66.220201),
    Sketcher.Constraint("DistanceX", 15, 3, 11, 3, 107.665598),
    Sketcher.Constraint("DistanceY", 20, 3, 15, 3, 22.823601),
    Sketcher.Constraint("DistanceX", 21, 3, 18, 3, 22.823601),
    Sketcher.Constraint("DistanceY", 29, 3, 30, 3, 66.220201),
    Sketcher.Constraint("DistanceX", 8, 3, -1, 1, 110.52514),
    Sketcher.Constraint("DistanceX", 11, 3, -1, 1, 56.749921),
    Sketcher.Constraint("DistanceY", 12, 3, -1, 1, 220.413039),
    Sketcher.Constraint("DistanceY", 13, 3, -1, 1, 228.786951),
    Sketcher.Constraint("DistanceY", 14, 3, -1, 1, 231.45377),
    Sketcher.Constraint("DistanceY", 15, 3, -1, 1, 217.29973),
    Sketcher.Constraint("DistanceX", 18, 3, -1, 1, 217.29973),
    Sketcher.Constraint("DistanceY", 18, 3, -1, 1, 164.41552),
    Sketcher.Constraint("DistanceX", 19, 3, -1, 1, 231.45377),
    Sketcher.Constraint("DistanceX", 22, 3, -1, 1, 228.786951),
    Sketcher.Constraint("DistanceX", 23, 3, -1, 1, 220.413039),
    Sketcher.Constraint("DistanceY", 24, 3, -1, 1, 56.749921),
    Sketcher.Constraint("DistanceY", 25, 3, -1, 1, 44.304938),
    Sketcher.Constraint("DistanceX", 10, 3, 9, 3, 16.593311),
    Sketcher.Constraint("DistanceY", 11, 3, 10, 3, 8.373912),
    Sketcher.Constraint("DistanceY", 12, 3, 11, 3, 8.373912),
    Sketcher.Constraint("DistanceX", 13, 3, 10, 3, 37.334949),
    Sketcher.Constraint("DistanceX", 14, 3, 12, 3, 74.613259),
    Sketcher.Constraint("DistanceX", 14, 3, 11, 3, 87.058242),
    Sketcher.Constraint("DistanceX", 16, 3, 13, 3, 101.99905),
    Sketcher.Constraint("DistanceY", 12, 3, 16, 3, 19.096432),
    Sketcher.Constraint("DistanceX", 17, 3, 16, 3, 17.67767),
    Sketcher.Constraint("DistanceY", 16, 3, 17, 3, 17.67767),
    Sketcher.Constraint("DistanceX", 14, 3, 20, 3, 14.996588),
    Sketcher.Constraint("DistanceY", 19, 3, 21, 3, 14.996588),
    Sketcher.Constraint("DistanceY", 16, 3, 21, 3, 72.505032),
    Sketcher.Constraint("DistanceY", 21, 3, 23, 3, 59.616671),
    Sketcher.Constraint("DistanceX", 23, 3, 24, 3, 8.373912),
    Sketcher.Constraint("DistanceX", 24, 3, 25, 3, 8.373912),
    Sketcher.Constraint("DistanceY", 22, 3, 25, 3, 37.334949),
    Sketcher.Constraint("DistanceY", 25, 3, 26, 3, 16.593311),
])
sketch3.setExpression("Constraints[73]", "Params.sketch3_diameter")
sketch3.setExpression("Constraints[74]", "Params.sketch3_diameter2")
sketch3.setExpression("Constraints[75]", "Params.sketch3_diameter3")
pocket1 = body2.newObject("PartDesign::Pocket", "Pocket")
pocket1.Profile = sketch3
pocket1.Type = "ThroughAll"
pocket1.Reversed = True

doc.recompute()
